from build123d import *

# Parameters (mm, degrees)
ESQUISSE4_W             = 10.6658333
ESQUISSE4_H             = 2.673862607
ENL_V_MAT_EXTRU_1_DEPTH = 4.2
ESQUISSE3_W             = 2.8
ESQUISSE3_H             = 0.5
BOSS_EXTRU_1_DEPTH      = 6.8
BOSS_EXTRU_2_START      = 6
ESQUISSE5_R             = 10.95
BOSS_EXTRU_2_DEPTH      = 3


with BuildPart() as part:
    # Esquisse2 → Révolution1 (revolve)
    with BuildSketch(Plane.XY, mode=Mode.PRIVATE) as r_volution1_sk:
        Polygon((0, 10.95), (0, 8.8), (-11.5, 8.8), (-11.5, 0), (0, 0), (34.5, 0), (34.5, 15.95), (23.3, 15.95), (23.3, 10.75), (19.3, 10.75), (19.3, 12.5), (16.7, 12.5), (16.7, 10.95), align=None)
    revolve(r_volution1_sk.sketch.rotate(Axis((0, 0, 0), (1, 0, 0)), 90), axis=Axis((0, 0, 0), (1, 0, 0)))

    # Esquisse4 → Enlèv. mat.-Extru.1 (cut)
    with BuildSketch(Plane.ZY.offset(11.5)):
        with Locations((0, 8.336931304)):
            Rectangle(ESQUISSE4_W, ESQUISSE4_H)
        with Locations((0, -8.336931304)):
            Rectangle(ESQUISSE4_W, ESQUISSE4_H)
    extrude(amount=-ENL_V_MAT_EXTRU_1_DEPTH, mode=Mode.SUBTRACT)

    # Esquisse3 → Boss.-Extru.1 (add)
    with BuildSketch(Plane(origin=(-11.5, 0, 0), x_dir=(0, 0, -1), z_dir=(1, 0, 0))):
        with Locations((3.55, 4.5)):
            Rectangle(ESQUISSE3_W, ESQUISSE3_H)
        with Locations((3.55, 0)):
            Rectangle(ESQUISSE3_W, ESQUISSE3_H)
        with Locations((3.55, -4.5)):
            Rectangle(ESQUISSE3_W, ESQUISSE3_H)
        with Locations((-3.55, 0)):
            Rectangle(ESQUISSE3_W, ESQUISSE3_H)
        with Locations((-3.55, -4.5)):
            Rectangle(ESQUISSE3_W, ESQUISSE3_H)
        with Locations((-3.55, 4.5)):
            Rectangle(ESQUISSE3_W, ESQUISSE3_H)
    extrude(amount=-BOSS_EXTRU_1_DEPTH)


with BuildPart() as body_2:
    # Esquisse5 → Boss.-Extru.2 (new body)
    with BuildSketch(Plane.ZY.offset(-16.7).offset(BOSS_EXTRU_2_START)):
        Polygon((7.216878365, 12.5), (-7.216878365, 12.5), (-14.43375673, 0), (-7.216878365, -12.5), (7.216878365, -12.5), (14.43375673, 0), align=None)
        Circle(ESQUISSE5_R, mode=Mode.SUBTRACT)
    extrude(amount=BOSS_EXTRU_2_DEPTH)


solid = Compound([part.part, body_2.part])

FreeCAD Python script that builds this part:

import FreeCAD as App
import Part
import Sketcher
from FreeCAD import Vector
Q = App.Units.Quantity

doc = App.newDocument("Part")
body = doc.addObject("PartDesign::Body", "Body")

# Sketch on XY plane
sketch1 = body.newObject("Sketcher::SketchObject", "Sketch")
sketch1.AttachmentSupport = (doc.getObject("XY_Plane"), [""])
sketch1.MapMode = "FlatFace"
sketch1.addGeometry([
    Part.LineSegment(Vector(0, 10.9, 0), Vector(0, 8.8, 0)),  # 0
    Part.LineSegment(Vector(0, 8.8, 0), Vector(-11.5, 8.8, 0)),  # 1
    Part.LineSegment(Vector(-11.5, 8.8, 0), Vector(-11.5, 0, 0)),  # 2
    Part.LineSegment(Vector(-11.5, 0, 0), Vector(34.5, 0, 0)),  # 3
    Part.LineSegment(Vector(34.5, 0, 0), Vector(34.5, 15.9, 0)),  # 4
    Part.LineSegment(Vector(34.5, 15.9, 0), Vector(23.3, 15.9, 0)),  # 5
    Part.LineSegment(Vector(23.3, 15.9, 0), Vector(23.3, 10.8, 0)),  # 6
    Part.LineSegment(Vector(23.3, 10.8, 0), Vector(19.3, 10.8, 0)),  # 7
    Part.LineSegment(Vector(19.3, 10.8, 0), Vector(19.3, 12.5, 0)),  # 8
    Part.LineSegment(Vector(19.3, 12.5, 0), Vector(16.7, 12.5, 0)),  # 9
    Part.LineSegment(Vector(16.7, 12.5, 0), Vector(16.7, 10.9, 0)),  # 10
    Part.LineSegment(Vector(16.7, 10.9, 0), Vector(0, 10.9, 0)),  # 11
], False)
sketch1.addConstraint([
    Sketcher.Constraint("Coincident", 0, 2, 1, 1),
    Sketcher.Constraint("Coincident", 1, 2, 2, 1),
    Sketcher.Constraint("Coincident", 2, 2, 3, 1),
    Sketcher.Constraint("Coincident", 3, 2, 4, 1),
    Sketcher.Constraint("Coincident", 4, 2, 5, 1),
    Sketcher.Constraint("Coincident", 5, 2, 6, 1),
    Sketcher.Constraint("Coincident", 6, 2, 7, 1),
    Sketcher.Constraint("Coincident", 7, 2, 8, 1),
    Sketcher.Constraint("Coincident", 8, 2, 9, 1),
    Sketcher.Constraint("Coincident", 9, 2, 10, 1),
    Sketcher.Constraint("Coincident", 10, 2, 11, 1),
    Sketcher.Constraint("Coincident", 11, 2, 0, 1),
    Sketcher.Constraint("Vertical", 0),
    Sketcher.Constraint("Horizontal", 1),
    Sketcher.Constraint("Vertical", 2),
    Sketcher.Constraint("Horizontal", 3),
    Sketcher.Constraint("Vertical", 4),
    Sketcher.Constraint("Horizontal", 5),
    Sketcher.Constraint("Vertical", 6),
    Sketcher.Constraint("Horizontal", 7),
    Sketcher.Constraint("Vertical", 8),
    Sketcher.Constraint("Horizontal", 9),
    Sketcher.Constraint("Vertical", 10),
    Sketcher.Constraint("Horizontal", 11),
    Sketcher.Constraint("PointOnObject", 0, 2, -2),
    Sketcher.Constraint("PointOnObject", 2, 2, -1),
    Sketcher.Constraint("DistanceX", 3, 1, 3, 2, 46.0),
    Sketcher.Constraint("DistanceX", 7, 2, 7, 1, 4.0),
    Sketcher.Constraint("DistanceX", 1, 2, 1, 1, 11.5),
    Sketcher.Constraint("DistanceX", 5, 2, 5, 1, 11.2),
    Sketcher.Constraint("DistanceX", 9, 2, 9, 1, 2.6),
    Sketcher.Constraint("DistanceY", 2, 2, 2, 1, 8.8),
    Sketcher.Constraint("DistanceY", 6, 2, 6, 1, 5.2),
    Sketcher.Constraint("DistanceY", 10, 2, 5, 2, 5.0),
    Sketcher.Constraint("DistanceY", 0, 2, 0, 1, 2.15),
    Sketcher.Constraint("DistanceY", 8, 1, 8, 2, 1.75),
])
revolution = body.newObject("PartDesign::Revolution", "Revolution")
revolution.Profile = sketch1
revolution.ReferenceAxis = (sketch1, ["H_Axis"])
revolution.Angle = 360

# Sketch on YZ plane
sketch2 = body.newObject("Sketcher::SketchObject", "Sketch001")
sketch2.AttachmentSupport = (doc.getObject("YZ_Plane"), [""])
sketch2.MapMode = "FlatFace"
sketch2.AttachmentOffset = App.Placement(Vector(0, 0, -11.5), App.Rotation())
sketch2.addGeometry([
    Part.LineSegment(Vector(9.7, -5.3, 0), Vector(7, -5.3, 0)),  # 0
    Part.LineSegment(Vector(7, -5.3, 0), Vector(7, 5.3, 0)),  # 1
    Part.LineSegment(Vector(7, 5.3, 0), Vector(9.7, 5.3, 0)),  # 2
    Part.LineSegment(Vector(9.7, 5.3, 0), Vector(9.7, -5.3, 0)),  # 3
    Part.LineSegment(Vector(-7, -5.3, 0), Vector(-9.7, -5.3, 0)),  # 4
    Part.LineSegment(Vector(-9.7, -5.3, 0), Vector(-9.7, 5.3, 0)),  # 5
    Part.LineSegment(Vector(-9.7, 5.3, 0), Vector(-7, 5.3, 0)),  # 6
    Part.LineSegment(Vector(-7, 5.3, 0), Vector(-7, -5.3, 0)),  # 7
], False)
sketch2.addConstraint([
    Sketcher.Constraint("Coincident", 0, 2, 1, 1),
    Sketcher.Constraint("Coincident", 1, 2, 2, 1),
    Sketcher.Constraint("Coincident", 2, 2, 3, 1),
    Sketcher.Constraint("Coincident", 3, 2, 0, 1),
    Sketcher.Constraint("Coincident", 4, 2, 5, 1),
    Sketcher.Constraint("Coincident", 5, 2, 6, 1),
    Sketcher.Constraint("Coincident", 6, 2, 7, 1),
    Sketcher.Constraint("Coincident", 7, 2, 4, 1),
    Sketcher.Constraint("Horizontal", 0),
    Sketcher.Constraint("Vertical", 1),
    Sketcher.Constraint("Horizontal", 2),
    Sketcher.Constraint("Vertical", 3),
    Sketcher.Constraint("Horizontal", 4),
    Sketcher.Constraint("Vertical", 5),
    Sketcher.Constraint("Horizontal", 6),
    Sketcher.Constraint("Vertical", 7),
    Sketcher.Constraint("Symmetric", 2, 2, 4, 2, -1, 1),
    Sketcher.Constraint("Symmetric", 0, 2, 6, 2, -1, 1),
    Sketcher.Constraint("Horizontal", 3, 2, 4, 2),
    Sketcher.Constraint("DistanceX", -1, 1, 0, 2, 7.0),
    Sketcher.Constraint("DistanceX", 0, 2, 0, 1, 2.673863),
    Sketcher.Constraint("DistanceY", 1, 1, 1, 2, 10.665833),
])
pocket1 = body.newObject("PartDesign::Pocket", "Pocket")
pocket1.Profile = sketch2
pocket1.Length = 4.2
pocket1.Reversed = True

# Sketch on YZ plane
sketch3 = body.newObject("Sketcher::SketchObject", "Sketch002")
sketch3.AttachmentSupport = (doc.getObject("YZ_Plane"), [""])
sketch3.MapMode = "FlatFace"
sketch3.AttachmentOffset = App.Placement(Vector(0, 0, -11.5), App.Rotation())
sketch3.addGeometry([
    Part.LineSegment(Vector(4.8, -2.1, 0), Vector(4.2, -2.1, 0)),  # 0
    Part.LineSegment(Vector(4.2, -2.1, 0), Vector(4.2, -5, 0)),  # 1
    Part.LineSegment(Vector(4.2, -5, 0), Vector(4.8, -5, 0)),  # 2
    Part.LineSegment(Vector(4.8, -5, 0), Vector(4.8, -2.1, 0)),  # 3
    Part.LineSegment(Vector(0.2, -2.1, 0), Vector(-0.2, -2.1, 0)),  # 4
    Part.LineSegment(Vector(-0.2, -2.1, 0), Vector(-0.2, -5, 0)),  # 5
    Part.LineSegment(Vector(-0.2, -5, 0), Vector(0.2, -5, 0)),  # 6
    Part.LineSegment(Vector(0.2, -5, 0), Vector(0.2, -2.1, 0)),  # 7
    Part.LineSegment(Vector(-4.2, -2.1, 0), Vector(-4.8, -2.1, 0)),  # 8
    Part.LineSegment(Vector(-4.8, -2.1, 0), Vector(-4.8, -5, 0)),  # 9
    Part.LineSegment(Vector(-4.8, -5, 0), Vector(-4.2, -5, 0)),  # 10
    Part.LineSegment(Vector(-4.2, -5, 0), Vector(-4.2, -2.1, 0)),  # 11
    Part.LineSegment(Vector(0.2, 5, 0), Vector(-0.2, 5, 0)),  # 12
    Part.LineSegment(Vector(-0.2, 5, 0), Vector(-0.2, 2.1, 0)),  # 13
    Part.LineSegment(Vector(-0.2, 2.1, 0), Vector(0.2, 2.1, 0)),  # 14
    Part.LineSegment(Vector(0.2, 2.1, 0), Vector(0.2, 5, 0)),  # 15
    Part.LineSegment(Vector(-4.2, 5, 0), Vector(-4.8, 5, 0)),  # 16
    Part.LineSegment(Vector(-4.8, 5, 0), Vector(-4.8, 2.1, 0)),  # 17
    Part.LineSegment(Vector(-4.8, 2.1, 0), Vector(-4.2, 2.1, 0)),  # 18
    Part.LineSegment(Vector(-4.2, 2.1, 0), Vector(-4.2, 5, 0)),  # 19
    Part.LineSegment(Vector(4.8, 5, 0), Vector(4.2, 5, 0)),  # 20
    Part.LineSegment(Vector(4.2, 5, 0), Vector(4.2, 2.1, 0)),  # 21
    Part.LineSegment(Vector(4.2, 2.1, 0), Vector(4.8, 2.1, 0)),  # 22
    Part.LineSegment(Vector(4.8, 2.1, 0), Vector(4.8, 5, 0)),  # 23
], False)
sketch3.addConstraint([
    Sketcher.Constraint("Coincident", 0, 2, 1, 1),
    Sketcher.Constraint("Coincident", 1, 2, 2, 1),
    Sketcher.Constraint("Coincident", 2, 2, 3, 1),
    Sketcher.Constraint("Coincident", 3, 2, 0, 1),
    Sketcher.Constraint("Coincident", 4, 2, 5, 1),
    Sketcher.Constraint("Coincident", 5, 2, 6, 1),
    Sketcher.Constraint("Coincident", 6, 2, 7, 1),
    Sketcher.Constraint("Coincident", 7, 2, 4, 1),
    Sketcher.Constraint("Coincident", 8, 2, 9, 1),
    Sketcher.Constraint("Coincident", 9, 2, 10, 1),
    Sketcher.Constraint("Coincident", 10, 2, 11, 1),
    Sketcher.Constraint("Coincident", 11, 2, 8, 1),
    Sketcher.Constraint("Coincident", 12, 2, 13, 1),
    Sketcher.Constraint("Coincident", 13, 2, 14, 1),
    Sketcher.Constraint("Coincident", 14, 2, 15, 1),
    Sketcher.Constraint("Coincident", 15, 2, 12, 1),
    Sketcher.Constraint("Coincident", 16, 2, 17, 1),
    Sketcher.Constraint("Coincident", 17, 2, 18, 1),
    Sketcher.Constraint("Coincident", 18, 2, 19, 1),
    Sketcher.Constraint("Coincident", 19, 2, 16, 1),
    Sketcher.Constraint("Coincident", 20, 2, 21, 1),
    Sketcher.Constraint("Coincident", 21, 2, 22, 1),
    Sketcher.Constraint("Coincident", 22, 2, 23, 1),
    Sketcher.Constraint("Coincident", 23, 2, 20, 1),
    Sketcher.Constraint("Horizontal", 0),
    Sketcher.Constraint("Vertical", 1),
    Sketcher.Constraint("Horizontal", 2),
    Sketcher.Constraint("Vertical", 3),
    Sketcher.Constraint("Horizontal", 4),
    Sketcher.Constraint("Vertical", 5),
    Sketcher.Constraint("Horizontal", 6),
    Sketcher.Constraint("Vertical", 7),
    Sketcher.Constraint("Horizontal", 8),
    Sketcher.Constraint("Vertical", 9),
    Sketcher.Constraint("Horizontal", 10),
    Sketcher.Constraint("Vertical", 11),
    Sketcher.Constraint("Horizontal", 12),
    Sketcher.Constraint("Vertical", 13),
    Sketcher.Constraint("Horizontal", 14),
    Sketcher.Constraint("Vertical", 15),
    Sketcher.Constraint("Horizontal", 16),
    Sketcher.Constraint("Vertical", 17),
    Sketcher.Constraint("Horizontal", 18),
    Sketcher.Constraint("Vertical", 19),
    Sketcher.Constraint("Horizontal", 20),
    Sketcher.Constraint("Vertical", 21),
    Sketcher.Constraint("Horizontal", 22),
    Sketcher.Constraint("Vertical", 23),
    Sketcher.Constraint("Symmetric", 6, 2, 12, 2, -1, 1),
    Sketcher.Constraint("Symmetric", 4, 2, 14, 2, -1, 1),
    Sketcher.Constraint("Symmetric", 2, 2, 16, 2, -1, 1),
    Sketcher.Constraint("Symmetric", 0, 2, 18, 2, -1, 1),
    Sketcher.Constraint("Symmetric", 10, 2, 20, 2, -1, 1),
    Sketcher.Constraint("Symmetric", 8, 2, 22, 2, -1, 1),
    Sketcher.Constraint("Symmetric", 3, 2, 8, 2, -2),
    Sketcher.Constraint("Symmetric", 1, 2, 10, 2, -2),
    Sketcher.Constraint("Horizontal", 3, 2, 4, 2),
    Sketcher.Constraint("Horizontal", 2, 2, 5, 2),
    Sketcher.Constraint("Vertical", 5, 2, 12, 2),
    Sketcher.Constraint("Equal", 2, 4),
    Sketcher.Constraint("DistanceX", 0, 2, 0, 1, 0.5),
    Sketcher.Constraint("DistanceY", 1, 2, 1, 1, 2.8),
    Sketcher.Constraint("DistanceX", 4, 2, 3, 2, 5.0),
    Sketcher.Constraint("DistanceY", 4, 2, 12, 2, 7.1),
])
pad1 = body.newObject("PartDesign::Pad", "Pad")
pad1.Profile = sketch3
pad1.Length = 6.8
pad1.Reversed = True
body2 = doc.addObject("PartDesign::Body", "Body001")

# Sketch on YZ plane
sketch4 = body2.newObject("Sketcher::SketchObject", "Sketch003")
sketch4.AttachmentSupport = (doc.getObject("YZ_Plane001"), [""])
sketch4.MapMode = "FlatFace"
sketch4.AttachmentOffset = App.Placement(Vector(0, 0, 10.7), App.Rotation())
sketch4.addGeometry([
    Part.LineSegment(Vector(12, 7, 0), Vector(12, -7, 0)),  # 0
    Part.LineSegment(Vector(12, -7, 0), Vector(0, -14, 0)),  # 1
    Part.LineSegment(Vector(0, -14, 0), Vector(-12, -7, 0)),  # 2
    Part.LineSegment(Vector(-12, -7, 0), Vector(-12, 7, 0)),  # 3
    Part.LineSegment(Vector(-12, 7, 0), Vector(0, 14, 0)),  # 4
    Part.LineSegment(Vector(0, 14, 0), Vector(12, 7, 0)),  # 5
    Part.Circle(Vector(0, 0, 0), Vector(0, 0, 1), 11),  # 6
], False)
sketch4.addConstraint([
    Sketcher.Constraint("Coincident", 0, 2, 1, 1),
    Sketcher.Constraint("Coincident", 1, 2, 2, 1),
    Sketcher.Constraint("Coincident", 2, 2, 3, 1),
    Sketcher.Constraint("Coincident", 3, 2, 4, 1),
    Sketcher.Constraint("Coincident", 4, 2, 5, 1),
    Sketcher.Constraint("Coincident", 5, 2, 0, 1),
    Sketcher.Constraint("Vertical", 0),
    Sketcher.Constraint("Vertical", 3),
    Sketcher.Constraint("Coincident", 6, 3, -1, 1),
    Sketcher.Constraint("Symmetric", 0, 2, 3, 2, -1, 1),
    Sketcher.Constraint("Symmetric", 1, 2, 4, 2, -1, 1),
    Sketcher.Constraint("PointOnObject", 1, 2, -2),
    Sketcher.Constraint("Parallel", 2, 5),
    Sketcher.Constraint("Horizontal", 0, 2, 2, 2),
    Sketcher.Constraint("Diameter", 6, 21.9),
    Sketcher.Constraint("Angle", 1, Q("-150 deg")),
    Sketcher.Constraint("DistanceX", 2, 2, 0, 2, 25.0),
    Sketcher.Constraint("DistanceY", 0, 2, 0, 1, 14.433757),
])
pad2 = body2.newObject("PartDesign::Pad", "Pad001")
pad2.Profile = sketch4
pad2.Length = 3
pad2.Reversed = True

doc.recompute()
